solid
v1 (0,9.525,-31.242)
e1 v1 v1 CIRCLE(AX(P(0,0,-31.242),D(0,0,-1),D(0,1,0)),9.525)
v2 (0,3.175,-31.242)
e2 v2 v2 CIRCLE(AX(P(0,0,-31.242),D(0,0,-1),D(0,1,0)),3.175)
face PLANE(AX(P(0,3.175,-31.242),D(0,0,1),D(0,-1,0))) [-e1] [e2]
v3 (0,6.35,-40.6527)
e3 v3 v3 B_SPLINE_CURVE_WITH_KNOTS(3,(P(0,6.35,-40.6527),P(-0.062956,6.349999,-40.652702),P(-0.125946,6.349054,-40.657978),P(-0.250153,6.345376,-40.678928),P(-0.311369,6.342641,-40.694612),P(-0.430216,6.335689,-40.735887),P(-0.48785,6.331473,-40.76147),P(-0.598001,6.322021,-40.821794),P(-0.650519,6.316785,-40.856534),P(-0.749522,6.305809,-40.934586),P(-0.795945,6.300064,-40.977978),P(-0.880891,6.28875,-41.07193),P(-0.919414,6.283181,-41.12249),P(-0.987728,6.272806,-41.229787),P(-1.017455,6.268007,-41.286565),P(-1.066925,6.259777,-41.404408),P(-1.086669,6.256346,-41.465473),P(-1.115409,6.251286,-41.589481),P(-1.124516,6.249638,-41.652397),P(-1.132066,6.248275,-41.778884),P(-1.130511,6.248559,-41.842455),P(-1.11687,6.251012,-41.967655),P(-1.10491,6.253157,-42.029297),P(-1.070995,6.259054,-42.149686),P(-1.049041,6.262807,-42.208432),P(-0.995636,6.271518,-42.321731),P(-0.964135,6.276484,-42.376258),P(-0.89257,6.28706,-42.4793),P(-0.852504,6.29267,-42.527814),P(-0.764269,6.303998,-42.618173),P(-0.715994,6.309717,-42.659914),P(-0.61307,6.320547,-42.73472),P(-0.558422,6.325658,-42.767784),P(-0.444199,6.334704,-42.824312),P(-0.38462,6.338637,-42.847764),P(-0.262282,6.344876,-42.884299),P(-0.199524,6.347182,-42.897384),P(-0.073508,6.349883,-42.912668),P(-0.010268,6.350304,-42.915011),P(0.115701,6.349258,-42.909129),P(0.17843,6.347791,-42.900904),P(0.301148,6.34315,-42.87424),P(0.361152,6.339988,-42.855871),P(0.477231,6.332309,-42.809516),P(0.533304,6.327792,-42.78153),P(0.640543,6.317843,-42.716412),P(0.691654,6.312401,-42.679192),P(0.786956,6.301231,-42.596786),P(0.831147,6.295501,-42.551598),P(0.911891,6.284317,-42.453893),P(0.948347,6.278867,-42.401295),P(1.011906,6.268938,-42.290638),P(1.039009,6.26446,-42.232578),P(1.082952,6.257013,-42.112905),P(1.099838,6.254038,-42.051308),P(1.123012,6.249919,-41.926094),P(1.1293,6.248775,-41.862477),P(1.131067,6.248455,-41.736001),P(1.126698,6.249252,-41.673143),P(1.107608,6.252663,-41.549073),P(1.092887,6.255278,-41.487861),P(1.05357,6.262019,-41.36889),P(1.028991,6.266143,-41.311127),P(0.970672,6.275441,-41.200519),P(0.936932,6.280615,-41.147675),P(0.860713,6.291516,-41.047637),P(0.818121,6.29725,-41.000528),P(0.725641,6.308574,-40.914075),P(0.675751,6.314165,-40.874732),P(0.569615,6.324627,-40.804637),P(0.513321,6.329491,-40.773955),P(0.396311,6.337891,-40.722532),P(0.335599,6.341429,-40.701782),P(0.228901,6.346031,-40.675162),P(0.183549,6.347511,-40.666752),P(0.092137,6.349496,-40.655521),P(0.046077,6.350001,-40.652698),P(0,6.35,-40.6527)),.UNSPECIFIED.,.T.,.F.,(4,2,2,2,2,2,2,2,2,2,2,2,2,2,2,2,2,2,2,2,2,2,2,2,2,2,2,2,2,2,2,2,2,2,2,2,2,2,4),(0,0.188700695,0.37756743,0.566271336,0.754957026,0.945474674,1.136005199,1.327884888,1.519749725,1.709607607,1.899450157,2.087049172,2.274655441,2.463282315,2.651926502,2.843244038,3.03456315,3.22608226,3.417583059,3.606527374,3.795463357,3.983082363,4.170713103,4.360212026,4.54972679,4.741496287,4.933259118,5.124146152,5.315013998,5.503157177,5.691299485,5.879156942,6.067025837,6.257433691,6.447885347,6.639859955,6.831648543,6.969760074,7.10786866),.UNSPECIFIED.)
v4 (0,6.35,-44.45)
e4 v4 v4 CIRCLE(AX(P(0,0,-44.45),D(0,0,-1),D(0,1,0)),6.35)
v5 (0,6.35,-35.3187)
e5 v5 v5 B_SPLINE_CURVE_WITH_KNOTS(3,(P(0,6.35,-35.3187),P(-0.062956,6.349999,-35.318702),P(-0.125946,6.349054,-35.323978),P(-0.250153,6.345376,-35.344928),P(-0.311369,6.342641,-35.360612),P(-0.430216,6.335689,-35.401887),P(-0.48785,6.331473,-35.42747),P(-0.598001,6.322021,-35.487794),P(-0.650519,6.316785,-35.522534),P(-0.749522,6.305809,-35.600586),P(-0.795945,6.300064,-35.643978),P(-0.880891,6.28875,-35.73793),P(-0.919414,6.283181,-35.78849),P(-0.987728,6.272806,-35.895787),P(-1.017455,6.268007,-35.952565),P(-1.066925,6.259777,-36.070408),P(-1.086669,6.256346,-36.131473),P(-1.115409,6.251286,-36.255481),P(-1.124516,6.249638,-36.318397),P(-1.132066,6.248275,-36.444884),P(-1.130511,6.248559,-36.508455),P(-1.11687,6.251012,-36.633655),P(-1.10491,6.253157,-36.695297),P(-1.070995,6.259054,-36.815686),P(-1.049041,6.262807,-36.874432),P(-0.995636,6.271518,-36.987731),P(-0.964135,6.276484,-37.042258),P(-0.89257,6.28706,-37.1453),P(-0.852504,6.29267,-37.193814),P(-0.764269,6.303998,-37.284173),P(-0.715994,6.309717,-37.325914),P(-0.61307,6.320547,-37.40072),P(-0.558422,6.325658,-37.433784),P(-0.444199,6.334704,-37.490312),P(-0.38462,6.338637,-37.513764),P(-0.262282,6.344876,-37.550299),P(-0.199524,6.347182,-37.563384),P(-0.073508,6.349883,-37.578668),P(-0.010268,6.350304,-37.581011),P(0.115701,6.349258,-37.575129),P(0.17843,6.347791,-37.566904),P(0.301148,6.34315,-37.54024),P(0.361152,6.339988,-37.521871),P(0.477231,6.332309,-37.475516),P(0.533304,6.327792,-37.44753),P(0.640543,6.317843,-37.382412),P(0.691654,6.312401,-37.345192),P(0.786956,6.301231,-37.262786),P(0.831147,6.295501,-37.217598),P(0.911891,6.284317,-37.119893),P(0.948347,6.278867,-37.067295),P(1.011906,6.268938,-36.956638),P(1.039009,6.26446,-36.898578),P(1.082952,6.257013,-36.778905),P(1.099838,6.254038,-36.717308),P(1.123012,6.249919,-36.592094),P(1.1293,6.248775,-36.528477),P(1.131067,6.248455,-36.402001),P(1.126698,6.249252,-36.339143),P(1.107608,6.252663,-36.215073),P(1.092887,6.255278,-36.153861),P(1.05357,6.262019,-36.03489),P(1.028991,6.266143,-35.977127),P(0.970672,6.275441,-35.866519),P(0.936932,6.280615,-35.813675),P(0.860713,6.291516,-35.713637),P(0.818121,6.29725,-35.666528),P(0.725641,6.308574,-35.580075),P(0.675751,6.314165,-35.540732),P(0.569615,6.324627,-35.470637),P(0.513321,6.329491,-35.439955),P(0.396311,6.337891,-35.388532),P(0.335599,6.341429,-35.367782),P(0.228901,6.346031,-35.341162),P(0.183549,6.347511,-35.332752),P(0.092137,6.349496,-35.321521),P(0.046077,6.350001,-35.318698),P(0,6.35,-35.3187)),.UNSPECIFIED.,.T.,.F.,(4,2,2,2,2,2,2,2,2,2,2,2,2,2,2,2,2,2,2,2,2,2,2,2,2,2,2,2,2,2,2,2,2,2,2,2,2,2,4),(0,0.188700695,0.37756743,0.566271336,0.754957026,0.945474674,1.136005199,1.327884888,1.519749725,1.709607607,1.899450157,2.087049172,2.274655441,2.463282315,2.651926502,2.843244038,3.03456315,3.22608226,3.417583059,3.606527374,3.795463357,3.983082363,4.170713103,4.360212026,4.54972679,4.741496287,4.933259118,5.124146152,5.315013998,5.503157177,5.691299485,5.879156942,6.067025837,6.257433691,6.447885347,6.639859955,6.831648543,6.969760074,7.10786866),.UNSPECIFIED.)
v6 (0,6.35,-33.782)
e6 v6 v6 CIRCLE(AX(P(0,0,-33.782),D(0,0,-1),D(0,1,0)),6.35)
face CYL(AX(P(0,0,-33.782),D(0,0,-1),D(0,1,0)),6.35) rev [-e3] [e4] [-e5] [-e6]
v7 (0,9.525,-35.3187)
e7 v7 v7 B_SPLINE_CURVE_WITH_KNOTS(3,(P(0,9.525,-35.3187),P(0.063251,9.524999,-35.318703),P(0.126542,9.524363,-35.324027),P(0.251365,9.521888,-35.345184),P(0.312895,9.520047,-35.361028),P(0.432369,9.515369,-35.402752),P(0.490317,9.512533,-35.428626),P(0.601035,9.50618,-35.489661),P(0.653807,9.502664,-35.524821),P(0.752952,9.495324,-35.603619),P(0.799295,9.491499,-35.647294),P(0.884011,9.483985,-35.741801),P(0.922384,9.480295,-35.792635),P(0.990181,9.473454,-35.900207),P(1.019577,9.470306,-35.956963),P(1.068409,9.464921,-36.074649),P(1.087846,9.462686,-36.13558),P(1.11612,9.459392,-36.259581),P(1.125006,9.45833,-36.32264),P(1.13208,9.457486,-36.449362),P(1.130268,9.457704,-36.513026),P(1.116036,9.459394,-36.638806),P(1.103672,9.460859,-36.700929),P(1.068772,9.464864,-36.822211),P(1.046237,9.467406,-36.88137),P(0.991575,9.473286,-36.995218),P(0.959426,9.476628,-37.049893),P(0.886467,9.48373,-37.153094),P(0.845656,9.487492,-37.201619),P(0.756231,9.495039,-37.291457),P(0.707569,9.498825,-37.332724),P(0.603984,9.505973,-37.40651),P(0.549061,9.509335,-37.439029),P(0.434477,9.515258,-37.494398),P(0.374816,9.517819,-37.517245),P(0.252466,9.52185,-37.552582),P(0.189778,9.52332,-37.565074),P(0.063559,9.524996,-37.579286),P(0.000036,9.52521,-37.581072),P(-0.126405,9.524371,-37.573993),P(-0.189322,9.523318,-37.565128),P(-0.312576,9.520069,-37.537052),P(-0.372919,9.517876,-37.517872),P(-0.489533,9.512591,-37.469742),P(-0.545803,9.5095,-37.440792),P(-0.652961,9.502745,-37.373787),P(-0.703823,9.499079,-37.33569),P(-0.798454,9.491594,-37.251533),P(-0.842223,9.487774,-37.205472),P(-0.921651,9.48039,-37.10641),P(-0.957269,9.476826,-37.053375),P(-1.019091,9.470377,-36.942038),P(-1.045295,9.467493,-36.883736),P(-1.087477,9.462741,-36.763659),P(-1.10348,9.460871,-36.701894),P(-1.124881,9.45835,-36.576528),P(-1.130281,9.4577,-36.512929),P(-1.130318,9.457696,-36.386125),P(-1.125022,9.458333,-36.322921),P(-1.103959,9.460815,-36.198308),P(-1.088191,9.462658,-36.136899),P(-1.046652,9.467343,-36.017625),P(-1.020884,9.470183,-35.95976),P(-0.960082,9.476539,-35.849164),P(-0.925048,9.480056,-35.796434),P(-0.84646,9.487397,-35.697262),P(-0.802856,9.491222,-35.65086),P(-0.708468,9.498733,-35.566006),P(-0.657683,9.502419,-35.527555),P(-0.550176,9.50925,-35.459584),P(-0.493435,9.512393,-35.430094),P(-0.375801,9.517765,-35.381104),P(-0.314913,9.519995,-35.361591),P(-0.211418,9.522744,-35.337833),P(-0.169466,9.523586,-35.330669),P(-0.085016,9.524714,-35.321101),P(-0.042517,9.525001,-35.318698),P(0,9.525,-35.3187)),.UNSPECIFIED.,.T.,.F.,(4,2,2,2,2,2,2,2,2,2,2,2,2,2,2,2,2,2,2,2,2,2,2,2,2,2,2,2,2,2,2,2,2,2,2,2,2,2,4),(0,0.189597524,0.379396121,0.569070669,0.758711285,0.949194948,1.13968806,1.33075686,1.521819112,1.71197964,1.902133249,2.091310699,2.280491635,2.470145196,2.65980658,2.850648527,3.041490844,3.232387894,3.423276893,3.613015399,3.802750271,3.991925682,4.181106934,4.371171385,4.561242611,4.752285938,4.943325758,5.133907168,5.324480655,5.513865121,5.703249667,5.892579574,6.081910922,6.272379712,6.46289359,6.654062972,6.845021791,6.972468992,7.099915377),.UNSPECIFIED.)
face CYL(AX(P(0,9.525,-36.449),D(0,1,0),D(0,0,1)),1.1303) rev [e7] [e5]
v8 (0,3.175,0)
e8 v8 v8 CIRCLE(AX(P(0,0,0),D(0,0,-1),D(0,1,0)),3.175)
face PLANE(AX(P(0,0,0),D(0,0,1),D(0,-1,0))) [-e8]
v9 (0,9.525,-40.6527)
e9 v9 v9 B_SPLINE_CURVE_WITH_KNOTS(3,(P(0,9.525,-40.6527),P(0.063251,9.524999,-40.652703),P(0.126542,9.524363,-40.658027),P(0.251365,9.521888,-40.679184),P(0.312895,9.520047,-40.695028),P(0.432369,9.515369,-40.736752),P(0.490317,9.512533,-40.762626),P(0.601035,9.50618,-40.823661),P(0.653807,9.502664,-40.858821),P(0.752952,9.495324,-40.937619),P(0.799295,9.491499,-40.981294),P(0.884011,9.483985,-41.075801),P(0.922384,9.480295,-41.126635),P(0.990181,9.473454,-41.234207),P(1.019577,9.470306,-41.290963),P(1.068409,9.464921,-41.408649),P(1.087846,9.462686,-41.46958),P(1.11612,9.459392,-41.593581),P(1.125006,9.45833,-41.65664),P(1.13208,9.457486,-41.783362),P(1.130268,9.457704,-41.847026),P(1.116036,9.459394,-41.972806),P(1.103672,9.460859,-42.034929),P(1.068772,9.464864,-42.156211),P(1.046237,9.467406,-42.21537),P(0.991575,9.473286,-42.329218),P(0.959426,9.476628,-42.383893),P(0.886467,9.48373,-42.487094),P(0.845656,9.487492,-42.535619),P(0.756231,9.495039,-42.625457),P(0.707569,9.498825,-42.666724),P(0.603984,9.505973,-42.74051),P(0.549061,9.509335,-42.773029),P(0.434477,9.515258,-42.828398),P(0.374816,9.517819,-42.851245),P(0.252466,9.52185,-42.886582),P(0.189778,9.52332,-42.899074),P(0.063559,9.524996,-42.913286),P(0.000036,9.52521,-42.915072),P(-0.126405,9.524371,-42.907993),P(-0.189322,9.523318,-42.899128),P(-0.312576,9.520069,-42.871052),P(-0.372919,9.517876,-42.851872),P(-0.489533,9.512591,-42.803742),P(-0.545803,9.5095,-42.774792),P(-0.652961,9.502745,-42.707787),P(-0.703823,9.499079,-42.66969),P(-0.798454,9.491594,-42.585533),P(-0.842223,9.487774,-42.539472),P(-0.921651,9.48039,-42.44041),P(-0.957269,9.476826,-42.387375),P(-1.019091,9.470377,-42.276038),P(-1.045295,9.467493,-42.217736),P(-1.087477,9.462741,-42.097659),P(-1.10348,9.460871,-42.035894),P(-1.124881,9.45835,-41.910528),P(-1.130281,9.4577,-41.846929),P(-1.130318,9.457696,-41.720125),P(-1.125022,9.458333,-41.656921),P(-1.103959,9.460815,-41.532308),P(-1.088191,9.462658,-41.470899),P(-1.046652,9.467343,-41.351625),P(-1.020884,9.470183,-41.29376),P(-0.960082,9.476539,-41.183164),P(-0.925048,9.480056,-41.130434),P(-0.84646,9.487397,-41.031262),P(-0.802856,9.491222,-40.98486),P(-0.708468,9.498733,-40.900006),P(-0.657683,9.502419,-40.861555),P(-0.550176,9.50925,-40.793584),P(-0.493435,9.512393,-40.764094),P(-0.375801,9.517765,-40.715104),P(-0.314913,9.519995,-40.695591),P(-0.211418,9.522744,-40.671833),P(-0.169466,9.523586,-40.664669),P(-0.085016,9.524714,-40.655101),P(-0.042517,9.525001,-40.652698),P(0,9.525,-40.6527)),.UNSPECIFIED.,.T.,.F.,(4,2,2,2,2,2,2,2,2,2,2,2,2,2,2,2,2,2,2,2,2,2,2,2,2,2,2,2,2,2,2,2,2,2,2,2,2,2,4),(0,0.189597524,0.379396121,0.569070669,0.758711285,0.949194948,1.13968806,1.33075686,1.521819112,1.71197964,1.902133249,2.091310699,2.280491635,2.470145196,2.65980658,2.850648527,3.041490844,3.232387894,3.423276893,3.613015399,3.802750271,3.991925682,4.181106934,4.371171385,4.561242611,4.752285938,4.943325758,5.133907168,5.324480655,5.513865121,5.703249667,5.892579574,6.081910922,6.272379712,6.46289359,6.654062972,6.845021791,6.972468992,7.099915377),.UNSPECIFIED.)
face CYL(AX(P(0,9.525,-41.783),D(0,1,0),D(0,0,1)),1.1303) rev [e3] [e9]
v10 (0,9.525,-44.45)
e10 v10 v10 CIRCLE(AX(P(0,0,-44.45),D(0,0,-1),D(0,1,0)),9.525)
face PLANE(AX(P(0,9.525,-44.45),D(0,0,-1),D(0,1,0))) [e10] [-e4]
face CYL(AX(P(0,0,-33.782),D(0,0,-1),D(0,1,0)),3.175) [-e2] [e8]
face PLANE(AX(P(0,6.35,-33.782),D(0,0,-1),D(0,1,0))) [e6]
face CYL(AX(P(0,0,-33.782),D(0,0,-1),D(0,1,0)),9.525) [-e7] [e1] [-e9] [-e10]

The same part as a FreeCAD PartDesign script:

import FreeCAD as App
import Part
import Sketcher

V = App.Vector
Q = App.Units.Quantity


def add_polygon(sketch, points):
    """Adds a closed chain of lines whose ends are joined by coincident constraints."""
    first, n = sketch.GeometryCount, len(points)
    for a, b in zip(points, points[1:] + points[:1]):
        sketch.addGeometry(Part.LineSegment(App.Vector(*a, 0), App.Vector(*b, 0)), False)
    for i in range(n):
        sketch.addConstraint(Sketcher.Constraint("Coincident", first + i, 2, first + (i + 1) % n, 1))

doc = App.newDocument("Part")
body = doc.addObject("PartDesign::Body", "Body")

sketch1 = doc.addObject("Sketcher::SketchObject", "Sketch")
body.addObject(sketch1)
sketch1.AttachmentSupport = (doc.YZ_Plane, [""])
sketch1.MapMode = "FlatFace"
add_polygon(sketch1, [(3.175, 0), (0, 0), (0, -33.782), (6.35, -33.782), (6.35, -44.45), (9.525, -44.45), (9.525, -31.242), (3.175, -31.242)])
sketch1.addConstraint([
    Sketcher.Constraint("Horizontal", 0),
    Sketcher.Constraint("Vertical", 1),
    Sketcher.Constraint("Horizontal", 2),
    Sketcher.Constraint("Vertical", 3),
    Sketcher.Constraint("Horizontal", 4),
    Sketcher.Constraint("Vertical", 5),
    Sketcher.Constraint("Horizontal", 6),
    Sketcher.Constraint("Vertical", 7),
    Sketcher.Constraint("Coincident", 0, 2, -1, 1),
    Sketcher.Constraint("Equal", 0, 4),
    Sketcher.Constraint("DistanceX", 2, 1, 2, 2, Q("0.25 in")),
    Sketcher.Constraint("DistanceY", 1, 2, 1, 1, Q("1.33 in")),
    Sketcher.Constraint("DistanceY", 3, 2, 3, 1, Q("0.42 in")),
    Sketcher.Constraint("DistanceY", 5, 1, 5, 2, Q("0.52 in")),
    Sketcher.Constraint("DistanceX", 0, 2, 0, 1, Q("0.125 in")),
])
revolution = doc.addObject("PartDesign::Revolution", "Revolution")
body.addObject(revolution)
revolution.Profile = sketch1
revolution.ReferenceAxis = (sketch1, ["V_Axis"])
revolution.Angle = 360

sketch2 = doc.addObject("Sketcher::SketchObject", "Sketch001")
body.addObject(sketch2)
sketch2.AttachmentSupport = (doc.XZ_Plane, [""])
sketch2.MapMode = "FlatFace"
sketch2.AttachmentOffset = App.Placement(V(0, 0, -0.375 * 25.4), App.Rotation())
sketch2.addGeometry(Part.Circle(V(0, -36.449, 0), V(0, 0, 1), 1.1303), False)
sketch2.addConstraint([
    Sketcher.Constraint("PointOnObject", 0, 3, -2),
    Sketcher.Constraint("Diameter", 0, Q("0.089 in")),
    Sketcher.Constraint("DistanceY", 0, 3, -1, 1, Q("1.435 in")),
])
pocket1 = doc.addObject("PartDesign::Pocket", "Pocket")
body.addObject(pocket1)
pocket1.Profile = sketch2
pocket1.Length = 3.276406
pocket1.Reversed = True

sketch3 = doc.addObject("Sketcher::SketchObject", "Sketch002")
body.addObject(sketch3)
sketch3.AttachmentSupport = (doc.XZ_Plane, [""])
sketch3.MapMode = "FlatFace"
sketch3.AttachmentOffset = App.Placement(V(0, 0, -0.375 * 25.4), App.Rotation())
sketch3.addGeometry(Part.Circle(V(0, -41.783, 0), V(0, 0, 1), 1.1303), False)
sketch3.addConstraint([
    Sketcher.Constraint("PointOnObject", 0, 3, -2),
    Sketcher.Constraint("Diameter", 0, Q("0.089 in")),
    Sketcher.Constraint("DistanceY", 0, 3, -1, 1, Q("1.645 in")),
])
pocket2 = doc.addObject("PartDesign::Pocket", "Pocket001")
body.addObject(pocket2)
pocket2.Profile = sketch3
pocket2.Length = 3.276406
pocket2.Reversed = True

doc.recompute()
